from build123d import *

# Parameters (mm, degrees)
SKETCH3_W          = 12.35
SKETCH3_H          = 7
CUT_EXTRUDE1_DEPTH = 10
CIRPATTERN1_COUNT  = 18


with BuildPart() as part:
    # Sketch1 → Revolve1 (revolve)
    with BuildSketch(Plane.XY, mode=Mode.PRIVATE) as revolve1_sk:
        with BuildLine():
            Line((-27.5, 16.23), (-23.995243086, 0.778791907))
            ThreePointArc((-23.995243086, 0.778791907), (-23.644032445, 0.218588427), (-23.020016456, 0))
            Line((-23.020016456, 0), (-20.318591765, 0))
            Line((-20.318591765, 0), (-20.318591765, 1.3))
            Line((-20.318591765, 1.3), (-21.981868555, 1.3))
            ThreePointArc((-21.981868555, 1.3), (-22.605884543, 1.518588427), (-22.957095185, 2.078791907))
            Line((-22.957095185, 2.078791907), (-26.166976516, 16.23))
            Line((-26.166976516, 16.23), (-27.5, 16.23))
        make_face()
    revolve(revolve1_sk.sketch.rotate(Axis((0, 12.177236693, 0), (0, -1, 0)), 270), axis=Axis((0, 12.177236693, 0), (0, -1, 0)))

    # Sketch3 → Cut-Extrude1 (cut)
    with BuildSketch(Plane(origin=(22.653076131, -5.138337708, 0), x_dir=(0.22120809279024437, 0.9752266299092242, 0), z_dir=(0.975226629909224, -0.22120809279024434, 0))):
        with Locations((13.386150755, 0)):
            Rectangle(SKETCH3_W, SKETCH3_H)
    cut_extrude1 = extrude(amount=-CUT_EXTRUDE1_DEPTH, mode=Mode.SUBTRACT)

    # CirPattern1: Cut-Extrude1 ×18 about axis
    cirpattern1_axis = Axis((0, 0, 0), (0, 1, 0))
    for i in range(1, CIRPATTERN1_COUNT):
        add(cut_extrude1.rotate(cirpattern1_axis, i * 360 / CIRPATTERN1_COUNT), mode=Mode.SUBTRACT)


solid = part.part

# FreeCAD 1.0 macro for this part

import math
import FreeCAD as App
import Part
import Sketcher

V = App.Vector
Q = App.Units.Quantity


def add_polygon(sketch, points):
    """Adds a closed chain of lines whose ends are joined by coincident constraints."""
    first, n = sketch.GeometryCount, len(points)
    for a, b in zip(points, points[1:] + points[:1]):
        sketch.addGeometry(Part.LineSegment(App.Vector(*a, 0), App.Vector(*b, 0)), False)
    for i in range(n):
        sketch.addConstraint(Sketcher.Constraint("Coincident", first + i, 2, first + (i + 1) % n, 1))

doc = App.newDocument("Part")
body = doc.addObject("PartDesign::Body", "Body")

sketch1 = body.newObject("Sketcher::SketchObject", "Sketch")
sketch1.AttachmentSupport = (doc.getObject("XY_Plane"), [""])
sketch1.MapMode = "FlatFace"
sketch1.addGeometry([
    Part.LineSegment(V(-27.5, 16.23, 0), V(-23.995243, 0.778792, 0)),
    Part.ArcOfCircle(Part.Circle(V(-23.020016, 1, 0), V(0, 0, 1), 1), math.radians(-167.22), math.radians(-90)),
    Part.LineSegment(V(-23.020016, 0, 0), V(-20.318592, 0, 0)),
    Part.LineSegment(V(-20.318592, 0, 0), V(-20.318592, 1.3, 0)),
    Part.LineSegment(V(-20.318592, 1.3, 0), V(-21.981869, 1.3, 0)),
    Part.ArcOfCircle(Part.Circle(V(-21.981869, 2.3, 0), V(0, 0, 1), 1), math.radians(-167.22), math.radians(-90)),
    Part.LineSegment(V(-22.957095, 2.078792, 0), V(-26.166977, 16.23, 0)),
    Part.LineSegment(V(-26.166977, 16.23, 0), V(-27.5, 16.23, 0)),
], False)
sketch1.addConstraint([
    Sketcher.Constraint("Tangent", 0, 2, 1, 1),
    Sketcher.Constraint("Tangent", 1, 2, 2, 1),
    Sketcher.Constraint("Coincident", 2, 2, 3, 1),
    Sketcher.Constraint("Coincident", 3, 2, 4, 1),
    Sketcher.Constraint("Tangent", 4, 2, 5, 2),
    Sketcher.Constraint("Tangent", 5, 1, 6, 1),
    Sketcher.Constraint("Coincident", 6, 2, 7, 1),
    Sketcher.Constraint("Coincident", 7, 2, 0, 1),
    Sketcher.Constraint("Horizontal", 2),
    Sketcher.Constraint("Vertical", 3),
    Sketcher.Constraint("Horizontal", 4),
    Sketcher.Constraint("Horizontal", 7),
    Sketcher.Constraint("Equal", 1, 5),
    Sketcher.Constraint("PointOnObject", 1, 2, -1),
    Sketcher.Constraint("Parallel", 0, 6),
    Sketcher.Constraint("Radius", 1, 1.0),
    Sketcher.Constraint("DistanceY", 3, 1, 3, 2, 1.3),
    Sketcher.Constraint("DistanceX", 7, 2, -1, 1, 27.5),
    Sketcher.Constraint("Angle", 0, Q("-77.22 deg")),
    Sketcher.Constraint("DistanceY", -1, 1, 6, 2, 16.23),
    Sketcher.Constraint("DistanceX", 2, 1, 2, 2, 2.701425),
    Sketcher.Constraint("DistanceX", 4, 2, 4, 1, 1.663277),
])
revolution = body.newObject("PartDesign::Revolution", "Revolution")
revolution.Profile = sketch1
revolution.ReferenceAxis = (sketch1, ["V_Axis"])
revolution.Angle = 360

sketch2 = body.newObject("Sketcher::SketchObject", "Sketch001")
sketch2.Placement = App.Placement(V(22.653076, -5.138338, 0), App.Rotation(V(0.221208093, 0.97522663, 0), V(0, 0, 1), V(0.97522663, -0.221208093, 0), "ZXY"))
add_polygon(sketch2, [(7.211151, 3.5), (7.211151, -3.5), (19.561151, -3.5), (19.561151, 3.5)])
sketch2.addConstraint([
    Sketcher.Constraint("Vertical", 0),
    Sketcher.Constraint("Horizontal", 1),
    Sketcher.Constraint("Vertical", 2),
    Sketcher.Constraint("Horizontal", 3),
    Sketcher.Constraint("DistanceY", 0, 2, 0, 1, 7.0),
    Sketcher.Constraint("DistanceX", 1, 1, 1, 2, 12.35),
    Sketcher.Constraint("DistanceY", 0, 2, -1, 1, 3.5),
    Sketcher.Constraint("DistanceX", -1, 1, 0, 2, 7.211151),
])
pocket1 = body.newObject("PartDesign::Pocket", "Pocket")
pocket1.Profile = sketch2
pocket1.Length = 10
doc.recompute()

polarpattern = body.newObject("PartDesign::PolarPattern", "PolarPattern")
polarpattern.Originals = [pocket1]
polarpattern.Axis = (doc.getObject("Y_Axis"), [""])
polarpattern.Angle = 360
polarpattern.Occurrences = 18
body.Tip = polarpattern

doc.recompute()
